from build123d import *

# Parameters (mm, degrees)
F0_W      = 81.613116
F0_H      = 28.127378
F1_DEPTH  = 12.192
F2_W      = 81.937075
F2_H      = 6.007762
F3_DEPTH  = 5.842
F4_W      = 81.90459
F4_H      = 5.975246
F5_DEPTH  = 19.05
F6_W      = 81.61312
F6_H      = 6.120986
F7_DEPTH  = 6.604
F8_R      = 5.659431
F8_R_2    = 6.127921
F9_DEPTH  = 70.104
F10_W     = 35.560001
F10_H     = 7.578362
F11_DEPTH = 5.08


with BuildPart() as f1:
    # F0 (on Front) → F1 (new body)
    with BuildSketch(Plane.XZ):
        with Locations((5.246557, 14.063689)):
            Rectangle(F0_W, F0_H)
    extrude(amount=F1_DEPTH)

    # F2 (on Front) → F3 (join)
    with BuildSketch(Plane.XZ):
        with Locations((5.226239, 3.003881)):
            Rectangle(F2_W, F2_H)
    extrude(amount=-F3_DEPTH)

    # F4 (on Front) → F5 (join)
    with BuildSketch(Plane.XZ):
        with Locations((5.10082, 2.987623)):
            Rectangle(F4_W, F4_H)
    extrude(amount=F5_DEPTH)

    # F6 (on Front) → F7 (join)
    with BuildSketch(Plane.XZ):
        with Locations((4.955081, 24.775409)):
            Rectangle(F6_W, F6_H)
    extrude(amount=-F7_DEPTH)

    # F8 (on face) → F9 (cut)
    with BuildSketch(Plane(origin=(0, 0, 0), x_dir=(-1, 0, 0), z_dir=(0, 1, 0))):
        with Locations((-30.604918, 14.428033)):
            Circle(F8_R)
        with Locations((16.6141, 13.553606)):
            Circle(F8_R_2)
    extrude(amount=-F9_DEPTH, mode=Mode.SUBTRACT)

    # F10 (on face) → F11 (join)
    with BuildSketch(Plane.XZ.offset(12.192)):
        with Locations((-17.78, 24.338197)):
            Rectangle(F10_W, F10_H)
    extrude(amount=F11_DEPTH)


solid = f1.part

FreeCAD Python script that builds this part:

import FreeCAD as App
import Part
import Sketcher
from FreeCAD import Vector
Q = App.Units.Quantity

doc = App.newDocument("Part")
body = doc.addObject("PartDesign::Body", "Body")

# Sketch on XZ plane
sketch1 = body.newObject("Sketcher::SketchObject", "Sketch")
sketch1.AttachmentSupport = (doc.getObject("XZ_Plane"), [""])
sketch1.MapMode = "FlatFace"
sketch1.addGeometry(Part.LineSegment(Vector(-36, 28, 0), Vector(-36, 0, 0)), False)
sketch1.addGeometry(Part.LineSegment(Vector(-36, 0, 0), Vector(46, 0, 0)), False)
sketch1.addGeometry(Part.LineSegment(Vector(46, 0, 0), Vector(46, 28, 0)), False)
sketch1.addGeometry(Part.LineSegment(Vector(46, 28, 0), Vector(-36, 28, 0)), False)
sketch1.addConstraint(Sketcher.Constraint("Coincident", 0, 2, 1, 1))
sketch1.addConstraint(Sketcher.Constraint("Coincident", 1, 2, 2, 1))
sketch1.addConstraint(Sketcher.Constraint("Coincident", 2, 2, 3, 1))
sketch1.addConstraint(Sketcher.Constraint("Coincident", 3, 2, 0, 1))
sketch1.addConstraint(Sketcher.Constraint("Vertical", 0))
sketch1.addConstraint(Sketcher.Constraint("Horizontal", 1))
sketch1.addConstraint(Sketcher.Constraint("Vertical", 2))
sketch1.addConstraint(Sketcher.Constraint("Horizontal", 3))
sketch1.addConstraint(Sketcher.Constraint("PointOnObject", 0, 2, -1))
sketch1.addConstraint(Sketcher.Constraint("DistanceX", 0, 2, -1, 1, Q("1.4 in")))
sketch1.addConstraint(Sketcher.Constraint("DistanceY", 0, 2, 0, 1, Q("28.127378 mm")))
sketch1.addConstraint(Sketcher.Constraint("DistanceX", 1, 1, 1, 2, Q("81.613116 mm")))
pad1 = body.newObject("PartDesign::Pad", "Pad")
pad1.Profile = sketch1
pad1.Length = Q("0.48 in")

# Sketch on XZ plane
sketch2 = body.newObject("Sketcher::SketchObject", "Sketch001")
sketch2.AttachmentSupport = (doc.getObject("XZ_Plane"), [""])
sketch2.MapMode = "FlatFace"
sketch2.addGeometry(Part.LineSegment(Vector(-36, 6, 0), Vector(-36, 0, 0)), False)
sketch2.addGeometry(Part.LineSegment(Vector(-36, 0, 0), Vector(46, 0, 0)), False)
sketch2.addGeometry(Part.LineSegment(Vector(46, 0, 0), Vector(46, 6, 0)), False)
sketch2.addGeometry(Part.LineSegment(Vector(46, 6, 0), Vector(-36, 6, 0)), False)
sketch2.addConstraint(Sketcher.Constraint("Coincident", 0, 2, 1, 1))
sketch2.addConstraint(Sketcher.Constraint("Coincident", 1, 2, 2, 1))
sketch2.addConstraint(Sketcher.Constraint("Coincident", 2, 2, 3, 1))
sketch2.addConstraint(Sketcher.Constraint("Coincident", 3, 2, 0, 1))
sketch2.addConstraint(Sketcher.Constraint("Vertical", 0))
sketch2.addConstraint(Sketcher.Constraint("Horizontal", 1))
sketch2.addConstraint(Sketcher.Constraint("Vertical", 2))
sketch2.addConstraint(Sketcher.Constraint("Horizontal", 3))
sketch2.addConstraint(Sketcher.Constraint("PointOnObject", 0, 2, -1))
sketch2.addConstraint(Sketcher.Constraint("DistanceY", 0, 2, 0, 1, Q("6.007762 mm")))
sketch2.addConstraint(Sketcher.Constraint("DistanceX", 0, 2, -1, 1, Q("35.742298 mm")))
sketch2.addConstraint(Sketcher.Constraint("DistanceX", 1, 1, 1, 2, Q("81.937075 mm")))
pad2 = body.newObject("PartDesign::Pad", "Pad001")
pad2.Profile = sketch2
pad2.Length = Q("0.23 in")
pad2.Reversed = True

# Sketch on XZ plane
sketch3 = body.newObject("Sketcher::SketchObject", "Sketch002")
sketch3.AttachmentSupport = (doc.getObject("XZ_Plane"), [""])
sketch3.MapMode = "FlatFace"
sketch3.addGeometry(Part.LineSegment(Vector(-36, 6, 0), Vector(-36, 0, 0)), False)
sketch3.addGeometry(Part.LineSegment(Vector(-36, 0, 0), Vector(46, 0, 0)), False)
sketch3.addGeometry(Part.LineSegment(Vector(46, 0, 0), Vector(46, 6, 0)), False)
sketch3.addGeometry(Part.LineSegment(Vector(46, 6, 0), Vector(-36, 6, 0)), False)
sketch3.addConstraint(Sketcher.Constraint("Coincident", 0, 2, 1, 1))
sketch3.addConstraint(Sketcher.Constraint("Coincident", 1, 2, 2, 1))
sketch3.addConstraint(Sketcher.Constraint("Coincident", 2, 2, 3, 1))
sketch3.addConstraint(Sketcher.Constraint("Coincident", 3, 2, 0, 1))
sketch3.addConstraint(Sketcher.Constraint("Vertical", 0))
sketch3.addConstraint(Sketcher.Constraint("Horizontal", 1))
sketch3.addConstraint(Sketcher.Constraint("Vertical", 2))
sketch3.addConstraint(Sketcher.Constraint("Horizontal", 3))
sketch3.addConstraint(Sketcher.Constraint("PointOnObject", 0, 2, -1))
sketch3.addConstraint(Sketcher.Constraint("DistanceX", 1, 1, 1, 2, Q("81.90459 mm")))
sketch3.addConstraint(Sketcher.Constraint("DistanceY", 0, 2, 0, 1, Q("5.975246 mm")))
sketch3.addConstraint(Sketcher.Constraint("DistanceX", 0, 2, -1, 1, Q("35.851475 mm")))
pad3 = body.newObject("PartDesign::Pad", "Pad002")
pad3.Profile = sketch3
pad3.Length = Q("0.75 in")

# Sketch on XZ plane
sketch4 = body.newObject("Sketcher::SketchObject", "Sketch003")
sketch4.AttachmentSupport = (doc.getObject("XZ_Plane"), [""])
sketch4.MapMode = "FlatFace"
sketch4.addGeometry(Part.LineSegment(Vector(-36, 28, 0), Vector(-36, 22, 0)), False)
sketch4.addGeometry(Part.LineSegment(Vector(-36, 22, 0), Vector(46, 22, 0)), False)
sketch4.addGeometry(Part.LineSegment(Vector(46, 22, 0), Vector(46, 28, 0)), False)
sketch4.addGeometry(Part.LineSegment(Vector(46, 28, 0), Vector(-36, 28, 0)), False)
sketch4.addConstraint(Sketcher.Constraint("Coincident", 0, 2, 1, 1))
sketch4.addConstraint(Sketcher.Constraint("Coincident", 1, 2, 2, 1))
sketch4.addConstraint(Sketcher.Constraint("Coincident", 2, 2, 3, 1))
sketch4.addConstraint(Sketcher.Constraint("Coincident", 3, 2, 0, 1))
sketch4.addConstraint(Sketcher.Constraint("Vertical", 0))
sketch4.addConstraint(Sketcher.Constraint("Horizontal", 1))
sketch4.addConstraint(Sketcher.Constraint("Vertical", 2))
sketch4.addConstraint(Sketcher.Constraint("Horizontal", 3))
sketch4.addConstraint(Sketcher.Constraint("DistanceX", 1, 1, 1, 2, Q("81.61312 mm")))
sketch4.addConstraint(Sketcher.Constraint("DistanceY", 0, 2, 0, 1, Q("6.120986 mm")))
sketch4.addConstraint(Sketcher.Constraint("DistanceX", 0, 2, -1, 1, Q("35.851479 mm")))
sketch4.addConstraint(Sketcher.Constraint("DistanceY", -1, 1, 0, 2, Q("21.714916 mm")))
pad4 = body.newObject("PartDesign::Pad", "Pad003")
pad4.Profile = sketch4
pad4.Length = Q("0.26 in")
pad4.Reversed = True

# Sketch on XZ plane
sketch5 = body.newObject("Sketcher::SketchObject", "Sketch004")
sketch5.AttachmentSupport = (doc.getObject("XZ_Plane"), [""])
sketch5.MapMode = "FlatFace"
sketch5.addGeometry(Part.Circle(Vector(31, 14, 0), Vector(0, 0, 1), 6), False)
sketch5.addGeometry(Part.Circle(Vector(-17, 14, 0), Vector(0, 0, 1), 6), False)
sketch5.addConstraint(Sketcher.Constraint("Diameter", 0, Q("11.318862 mm")))
sketch5.addConstraint(Sketcher.Constraint("Diameter", 1, Q("12.255842 mm")))
sketch5.addConstraint(Sketcher.Constraint("DistanceX", 1, 3, -1, 1, Q("16.6141 mm")))
sketch5.addConstraint(Sketcher.Constraint("DistanceX", -1, 1, 0, 3, Q("30.604918 mm")))
sketch5.addConstraint(Sketcher.Constraint("DistanceY", -1, 1, 0, 3, Q("14.428033 mm")))
sketch5.addConstraint(Sketcher.Constraint("DistanceY", -1, 1, 1, 3, Q("13.553606 mm")))
pocket1 = body.newObject("PartDesign::Pocket", "Pocket")
pocket1.Profile = sketch5
pocket1.Length = Q("2.76 in")
pocket1.Reversed = True

# Sketch on XZ plane
sketch6 = body.newObject("Sketcher::SketchObject", "Sketch005")
sketch6.AttachmentSupport = (doc.getObject("XZ_Plane"), [""])
sketch6.MapMode = "FlatFace"
sketch6.AttachmentOffset = App.Placement(Vector(0, 0, 0.48 * 25.4), App.Rotation())
sketch6.addGeometry(Part.LineSegment(Vector(-36, 28, 0), Vector(-36, 21, 0)), False)
sketch6.addGeometry(Part.LineSegment(Vector(-36, 21, 0), Vector(0, 21, 0)), False)
sketch6.addGeometry(Part.LineSegment(Vector(0, 21, 0), Vector(0, 28, 0)), False)
sketch6.addGeometry(Part.LineSegment(Vector(0, 28, 0), Vector(-36, 28, 0)), False)
sketch6.addConstraint(Sketcher.Constraint("Coincident", 0, 2, 1, 1))
sketch6.addConstraint(Sketcher.Constraint("Coincident", 1, 2, 2, 1))
sketch6.addConstraint(Sketcher.Constraint("Coincident", 2, 2, 3, 1))
sketch6.addConstraint(Sketcher.Constraint("Coincident", 3, 2, 0, 1))
sketch6.addConstraint(Sketcher.Constraint("Vertical", 0))
sketch6.addConstraint(Sketcher.Constraint("Horizontal", 1))
sketch6.addConstraint(Sketcher.Constraint("Vertical", 2))
sketch6.addConstraint(Sketcher.Constraint("Horizontal", 3))
sketch6.addConstraint(Sketcher.Constraint("PointOnObject", 1, 2, -2))
sketch6.addConstraint(Sketcher.Constraint("DistanceX", 1, 1, 1, 2, Q("1.4 in")))
sketch6.addConstraint(Sketcher.Constraint("DistanceY", 0, 2, 0, 1, Q("7.578362 mm")))
sketch6.addConstraint(Sketcher.Constraint("DistanceY", -1, 1, 2, 2, Q("28.127378 mm")))
pad5 = body.newObject("PartDesign::Pad", "Pad004")
pad5.Profile = sketch6
pad5.Length = Q("0.2 in")

doc.recompute()
